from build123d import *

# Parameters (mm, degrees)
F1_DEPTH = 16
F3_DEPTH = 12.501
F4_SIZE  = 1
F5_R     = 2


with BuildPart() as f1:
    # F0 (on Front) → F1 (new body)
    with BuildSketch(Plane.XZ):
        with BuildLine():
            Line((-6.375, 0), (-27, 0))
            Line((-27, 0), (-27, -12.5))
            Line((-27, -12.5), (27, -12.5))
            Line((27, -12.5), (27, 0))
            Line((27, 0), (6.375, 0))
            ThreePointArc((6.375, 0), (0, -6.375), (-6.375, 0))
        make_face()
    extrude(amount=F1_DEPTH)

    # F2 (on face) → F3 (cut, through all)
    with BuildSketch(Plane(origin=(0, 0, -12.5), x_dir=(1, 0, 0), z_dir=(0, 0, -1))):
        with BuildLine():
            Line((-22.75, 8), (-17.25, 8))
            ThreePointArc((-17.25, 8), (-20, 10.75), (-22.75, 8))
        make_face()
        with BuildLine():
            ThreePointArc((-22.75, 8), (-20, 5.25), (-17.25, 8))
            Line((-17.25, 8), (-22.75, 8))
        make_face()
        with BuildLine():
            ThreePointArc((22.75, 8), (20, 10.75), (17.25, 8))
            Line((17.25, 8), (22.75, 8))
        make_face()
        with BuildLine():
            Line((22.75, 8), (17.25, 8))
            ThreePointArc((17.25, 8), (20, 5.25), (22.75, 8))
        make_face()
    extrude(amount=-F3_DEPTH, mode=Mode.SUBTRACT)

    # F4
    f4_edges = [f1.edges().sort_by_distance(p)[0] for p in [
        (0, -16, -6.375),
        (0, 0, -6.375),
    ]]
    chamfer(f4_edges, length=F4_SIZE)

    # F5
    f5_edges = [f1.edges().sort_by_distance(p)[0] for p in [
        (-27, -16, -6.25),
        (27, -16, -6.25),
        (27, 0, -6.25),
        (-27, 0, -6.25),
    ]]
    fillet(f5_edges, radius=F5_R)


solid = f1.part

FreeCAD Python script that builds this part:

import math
import FreeCAD as App
import Part
import Sketcher

V = App.Vector


def edges_at(feature, points):
    """Names of the edges that pass closest to the given points."""
    edges = feature.Shape.Edges
    near = lambda p: min(range(len(edges)), key=lambda i: edges[i].distToShape(Part.Vertex(*p))[0])
    return sorted({f"Edge{near(p) + 1}" for p in points})

doc = App.newDocument("Part")
params = doc.addObject("Spreadsheet::Sheet", "Params")
for row, (alias, value) in enumerate([
    ("sketch1_width", "54 mm"),
    ("sketch1_height", "12.5 mm"),
    ("pad1_length", "16 mm"),
    ("sketch2_diameter", "5.5 mm"),
    ("chamfer_size", "1 mm"),
    ("fillet_radius", "2 mm"),
], start=1):
    params.set(f"A{row}", alias)
    params.set(f"B{row}", "=" + value)
    params.setAlias(f"B{row}", alias)

body = doc.addObject("PartDesign::Body", "Body")

# Sketch on XZ plane
sketch1 = body.newObject("Sketcher::SketchObject", "Sketch")
sketch1.AttachmentSupport = (doc.getObject("XZ_Plane"), [""])
sketch1.MapMode = "FlatFace"
sketch1.addGeometry([
    Part.LineSegment(V(-6, 0, 0), V(-27, 0, 0)),  # 0
    Part.LineSegment(V(-27, 0, 0), V(-27, -12, 0)),  # 1
    Part.LineSegment(V(-27, -12, 0), V(27, -12, 0)),  # 2
    Part.LineSegment(V(27, -12, 0), V(27, 0, 0)),  # 3
    Part.LineSegment(V(27, 0, 0), V(6, 0, 0)),  # 4
    Part.ArcOfCircle(Part.Circle(V(0, 0, 0), V(0, 0, 1), 6), math.radians(180), math.radians(360)),  # 5
], False)
sketch1.addConstraint([
    Sketcher.Constraint("Coincident", 0, 2, 1, 1),
    Sketcher.Constraint("Coincident", 1, 2, 2, 1),
    Sketcher.Constraint("Coincident", 2, 2, 3, 1),
    Sketcher.Constraint("Coincident", 3, 2, 4, 1),
    Sketcher.Constraint("Coincident", 4, 2, 5, 2),
    Sketcher.Constraint("Coincident", 5, 1, 0, 1),
    Sketcher.Constraint("Horizontal", 0),
    Sketcher.Constraint("Vertical", 1),
    Sketcher.Constraint("Horizontal", 2),
    Sketcher.Constraint("Vertical", 3),
    Sketcher.Constraint("Horizontal", 4),
    Sketcher.Constraint("Coincident", 5, 3, -1, 1),
    Sketcher.Constraint("Symmetric", 0, 2, 3, 2, -1, 1),
    Sketcher.Constraint("PointOnObject", 0, 2, -1),
    Sketcher.Constraint("DistanceX", 2, 1, 2, 2, 54.0),
    Sketcher.Constraint("DistanceY", 1, 2, 1, 1, 12.5),
    Sketcher.Constraint("Radius", 5, 6.375),
])
sketch1.setExpression("Constraints[14]", "Params.sketch1_width")
sketch1.setExpression("Constraints[15]", "Params.sketch1_height")
pad1 = body.newObject("PartDesign::Pad", "Pad")
pad1.Profile = sketch1
pad1.setExpression("Length", "Params.pad1_length")

# Sketch on XY plane
sketch2 = body.newObject("Sketcher::SketchObject", "Sketch001")
sketch2.AttachmentSupport = (doc.getObject("XY_Plane"), [""])
sketch2.MapMode = "FlatFace"
sketch2.AttachmentOffset = App.Placement(V(0, 0, -12.5), App.Rotation())
sketch2.addGeometry([
    Part.Circle(V(-20, -8, 0), V(0, 0, 1), 2.8),
    Part.Circle(V(20, -8, 0), V(0, 0, 1), 2.8),
], False)
sketch2.addConstraint([
    Sketcher.Constraint("Equal", 0, 1),
    Sketcher.Constraint("Symmetric", 0, 3, 1, 3, -2),
    Sketcher.Constraint("Diameter", 0, 5.5),
    Sketcher.Constraint("DistanceX", 0, 3, -1, 1, 20.0),
    Sketcher.Constraint("DistanceY", 0, 3, -1, 1, 8.0),
])
sketch2.setExpression("Constraints[2]", "Params.sketch2_diameter")
pocket1 = body.newObject("PartDesign::Pocket", "Pocket")
pocket1.Profile = sketch2
pocket1.Type = "ThroughAll"
pocket1.Reversed = True
doc.recompute()

chamfer = body.newObject("PartDesign::Chamfer", "Chamfer")
chamfer.Base = (pocket1, edges_at(pocket1, [(0, -16, -6.375), (0, 0, -6.375)]))
chamfer.setExpression("Size", "Params.chamfer_size")
doc.recompute()

fillet = body.newObject("PartDesign::Fillet", "Fillet")
fillet.Base = (chamfer, edges_at(chamfer, [
    (-27, -16, -6.25),
    (27, -16, -6.25),
    (27, 0, -6.25),
    (-27, 0, -6.25),
]))
fillet.setExpression("Radius", "Params.fillet_radius")

doc.recompute()
